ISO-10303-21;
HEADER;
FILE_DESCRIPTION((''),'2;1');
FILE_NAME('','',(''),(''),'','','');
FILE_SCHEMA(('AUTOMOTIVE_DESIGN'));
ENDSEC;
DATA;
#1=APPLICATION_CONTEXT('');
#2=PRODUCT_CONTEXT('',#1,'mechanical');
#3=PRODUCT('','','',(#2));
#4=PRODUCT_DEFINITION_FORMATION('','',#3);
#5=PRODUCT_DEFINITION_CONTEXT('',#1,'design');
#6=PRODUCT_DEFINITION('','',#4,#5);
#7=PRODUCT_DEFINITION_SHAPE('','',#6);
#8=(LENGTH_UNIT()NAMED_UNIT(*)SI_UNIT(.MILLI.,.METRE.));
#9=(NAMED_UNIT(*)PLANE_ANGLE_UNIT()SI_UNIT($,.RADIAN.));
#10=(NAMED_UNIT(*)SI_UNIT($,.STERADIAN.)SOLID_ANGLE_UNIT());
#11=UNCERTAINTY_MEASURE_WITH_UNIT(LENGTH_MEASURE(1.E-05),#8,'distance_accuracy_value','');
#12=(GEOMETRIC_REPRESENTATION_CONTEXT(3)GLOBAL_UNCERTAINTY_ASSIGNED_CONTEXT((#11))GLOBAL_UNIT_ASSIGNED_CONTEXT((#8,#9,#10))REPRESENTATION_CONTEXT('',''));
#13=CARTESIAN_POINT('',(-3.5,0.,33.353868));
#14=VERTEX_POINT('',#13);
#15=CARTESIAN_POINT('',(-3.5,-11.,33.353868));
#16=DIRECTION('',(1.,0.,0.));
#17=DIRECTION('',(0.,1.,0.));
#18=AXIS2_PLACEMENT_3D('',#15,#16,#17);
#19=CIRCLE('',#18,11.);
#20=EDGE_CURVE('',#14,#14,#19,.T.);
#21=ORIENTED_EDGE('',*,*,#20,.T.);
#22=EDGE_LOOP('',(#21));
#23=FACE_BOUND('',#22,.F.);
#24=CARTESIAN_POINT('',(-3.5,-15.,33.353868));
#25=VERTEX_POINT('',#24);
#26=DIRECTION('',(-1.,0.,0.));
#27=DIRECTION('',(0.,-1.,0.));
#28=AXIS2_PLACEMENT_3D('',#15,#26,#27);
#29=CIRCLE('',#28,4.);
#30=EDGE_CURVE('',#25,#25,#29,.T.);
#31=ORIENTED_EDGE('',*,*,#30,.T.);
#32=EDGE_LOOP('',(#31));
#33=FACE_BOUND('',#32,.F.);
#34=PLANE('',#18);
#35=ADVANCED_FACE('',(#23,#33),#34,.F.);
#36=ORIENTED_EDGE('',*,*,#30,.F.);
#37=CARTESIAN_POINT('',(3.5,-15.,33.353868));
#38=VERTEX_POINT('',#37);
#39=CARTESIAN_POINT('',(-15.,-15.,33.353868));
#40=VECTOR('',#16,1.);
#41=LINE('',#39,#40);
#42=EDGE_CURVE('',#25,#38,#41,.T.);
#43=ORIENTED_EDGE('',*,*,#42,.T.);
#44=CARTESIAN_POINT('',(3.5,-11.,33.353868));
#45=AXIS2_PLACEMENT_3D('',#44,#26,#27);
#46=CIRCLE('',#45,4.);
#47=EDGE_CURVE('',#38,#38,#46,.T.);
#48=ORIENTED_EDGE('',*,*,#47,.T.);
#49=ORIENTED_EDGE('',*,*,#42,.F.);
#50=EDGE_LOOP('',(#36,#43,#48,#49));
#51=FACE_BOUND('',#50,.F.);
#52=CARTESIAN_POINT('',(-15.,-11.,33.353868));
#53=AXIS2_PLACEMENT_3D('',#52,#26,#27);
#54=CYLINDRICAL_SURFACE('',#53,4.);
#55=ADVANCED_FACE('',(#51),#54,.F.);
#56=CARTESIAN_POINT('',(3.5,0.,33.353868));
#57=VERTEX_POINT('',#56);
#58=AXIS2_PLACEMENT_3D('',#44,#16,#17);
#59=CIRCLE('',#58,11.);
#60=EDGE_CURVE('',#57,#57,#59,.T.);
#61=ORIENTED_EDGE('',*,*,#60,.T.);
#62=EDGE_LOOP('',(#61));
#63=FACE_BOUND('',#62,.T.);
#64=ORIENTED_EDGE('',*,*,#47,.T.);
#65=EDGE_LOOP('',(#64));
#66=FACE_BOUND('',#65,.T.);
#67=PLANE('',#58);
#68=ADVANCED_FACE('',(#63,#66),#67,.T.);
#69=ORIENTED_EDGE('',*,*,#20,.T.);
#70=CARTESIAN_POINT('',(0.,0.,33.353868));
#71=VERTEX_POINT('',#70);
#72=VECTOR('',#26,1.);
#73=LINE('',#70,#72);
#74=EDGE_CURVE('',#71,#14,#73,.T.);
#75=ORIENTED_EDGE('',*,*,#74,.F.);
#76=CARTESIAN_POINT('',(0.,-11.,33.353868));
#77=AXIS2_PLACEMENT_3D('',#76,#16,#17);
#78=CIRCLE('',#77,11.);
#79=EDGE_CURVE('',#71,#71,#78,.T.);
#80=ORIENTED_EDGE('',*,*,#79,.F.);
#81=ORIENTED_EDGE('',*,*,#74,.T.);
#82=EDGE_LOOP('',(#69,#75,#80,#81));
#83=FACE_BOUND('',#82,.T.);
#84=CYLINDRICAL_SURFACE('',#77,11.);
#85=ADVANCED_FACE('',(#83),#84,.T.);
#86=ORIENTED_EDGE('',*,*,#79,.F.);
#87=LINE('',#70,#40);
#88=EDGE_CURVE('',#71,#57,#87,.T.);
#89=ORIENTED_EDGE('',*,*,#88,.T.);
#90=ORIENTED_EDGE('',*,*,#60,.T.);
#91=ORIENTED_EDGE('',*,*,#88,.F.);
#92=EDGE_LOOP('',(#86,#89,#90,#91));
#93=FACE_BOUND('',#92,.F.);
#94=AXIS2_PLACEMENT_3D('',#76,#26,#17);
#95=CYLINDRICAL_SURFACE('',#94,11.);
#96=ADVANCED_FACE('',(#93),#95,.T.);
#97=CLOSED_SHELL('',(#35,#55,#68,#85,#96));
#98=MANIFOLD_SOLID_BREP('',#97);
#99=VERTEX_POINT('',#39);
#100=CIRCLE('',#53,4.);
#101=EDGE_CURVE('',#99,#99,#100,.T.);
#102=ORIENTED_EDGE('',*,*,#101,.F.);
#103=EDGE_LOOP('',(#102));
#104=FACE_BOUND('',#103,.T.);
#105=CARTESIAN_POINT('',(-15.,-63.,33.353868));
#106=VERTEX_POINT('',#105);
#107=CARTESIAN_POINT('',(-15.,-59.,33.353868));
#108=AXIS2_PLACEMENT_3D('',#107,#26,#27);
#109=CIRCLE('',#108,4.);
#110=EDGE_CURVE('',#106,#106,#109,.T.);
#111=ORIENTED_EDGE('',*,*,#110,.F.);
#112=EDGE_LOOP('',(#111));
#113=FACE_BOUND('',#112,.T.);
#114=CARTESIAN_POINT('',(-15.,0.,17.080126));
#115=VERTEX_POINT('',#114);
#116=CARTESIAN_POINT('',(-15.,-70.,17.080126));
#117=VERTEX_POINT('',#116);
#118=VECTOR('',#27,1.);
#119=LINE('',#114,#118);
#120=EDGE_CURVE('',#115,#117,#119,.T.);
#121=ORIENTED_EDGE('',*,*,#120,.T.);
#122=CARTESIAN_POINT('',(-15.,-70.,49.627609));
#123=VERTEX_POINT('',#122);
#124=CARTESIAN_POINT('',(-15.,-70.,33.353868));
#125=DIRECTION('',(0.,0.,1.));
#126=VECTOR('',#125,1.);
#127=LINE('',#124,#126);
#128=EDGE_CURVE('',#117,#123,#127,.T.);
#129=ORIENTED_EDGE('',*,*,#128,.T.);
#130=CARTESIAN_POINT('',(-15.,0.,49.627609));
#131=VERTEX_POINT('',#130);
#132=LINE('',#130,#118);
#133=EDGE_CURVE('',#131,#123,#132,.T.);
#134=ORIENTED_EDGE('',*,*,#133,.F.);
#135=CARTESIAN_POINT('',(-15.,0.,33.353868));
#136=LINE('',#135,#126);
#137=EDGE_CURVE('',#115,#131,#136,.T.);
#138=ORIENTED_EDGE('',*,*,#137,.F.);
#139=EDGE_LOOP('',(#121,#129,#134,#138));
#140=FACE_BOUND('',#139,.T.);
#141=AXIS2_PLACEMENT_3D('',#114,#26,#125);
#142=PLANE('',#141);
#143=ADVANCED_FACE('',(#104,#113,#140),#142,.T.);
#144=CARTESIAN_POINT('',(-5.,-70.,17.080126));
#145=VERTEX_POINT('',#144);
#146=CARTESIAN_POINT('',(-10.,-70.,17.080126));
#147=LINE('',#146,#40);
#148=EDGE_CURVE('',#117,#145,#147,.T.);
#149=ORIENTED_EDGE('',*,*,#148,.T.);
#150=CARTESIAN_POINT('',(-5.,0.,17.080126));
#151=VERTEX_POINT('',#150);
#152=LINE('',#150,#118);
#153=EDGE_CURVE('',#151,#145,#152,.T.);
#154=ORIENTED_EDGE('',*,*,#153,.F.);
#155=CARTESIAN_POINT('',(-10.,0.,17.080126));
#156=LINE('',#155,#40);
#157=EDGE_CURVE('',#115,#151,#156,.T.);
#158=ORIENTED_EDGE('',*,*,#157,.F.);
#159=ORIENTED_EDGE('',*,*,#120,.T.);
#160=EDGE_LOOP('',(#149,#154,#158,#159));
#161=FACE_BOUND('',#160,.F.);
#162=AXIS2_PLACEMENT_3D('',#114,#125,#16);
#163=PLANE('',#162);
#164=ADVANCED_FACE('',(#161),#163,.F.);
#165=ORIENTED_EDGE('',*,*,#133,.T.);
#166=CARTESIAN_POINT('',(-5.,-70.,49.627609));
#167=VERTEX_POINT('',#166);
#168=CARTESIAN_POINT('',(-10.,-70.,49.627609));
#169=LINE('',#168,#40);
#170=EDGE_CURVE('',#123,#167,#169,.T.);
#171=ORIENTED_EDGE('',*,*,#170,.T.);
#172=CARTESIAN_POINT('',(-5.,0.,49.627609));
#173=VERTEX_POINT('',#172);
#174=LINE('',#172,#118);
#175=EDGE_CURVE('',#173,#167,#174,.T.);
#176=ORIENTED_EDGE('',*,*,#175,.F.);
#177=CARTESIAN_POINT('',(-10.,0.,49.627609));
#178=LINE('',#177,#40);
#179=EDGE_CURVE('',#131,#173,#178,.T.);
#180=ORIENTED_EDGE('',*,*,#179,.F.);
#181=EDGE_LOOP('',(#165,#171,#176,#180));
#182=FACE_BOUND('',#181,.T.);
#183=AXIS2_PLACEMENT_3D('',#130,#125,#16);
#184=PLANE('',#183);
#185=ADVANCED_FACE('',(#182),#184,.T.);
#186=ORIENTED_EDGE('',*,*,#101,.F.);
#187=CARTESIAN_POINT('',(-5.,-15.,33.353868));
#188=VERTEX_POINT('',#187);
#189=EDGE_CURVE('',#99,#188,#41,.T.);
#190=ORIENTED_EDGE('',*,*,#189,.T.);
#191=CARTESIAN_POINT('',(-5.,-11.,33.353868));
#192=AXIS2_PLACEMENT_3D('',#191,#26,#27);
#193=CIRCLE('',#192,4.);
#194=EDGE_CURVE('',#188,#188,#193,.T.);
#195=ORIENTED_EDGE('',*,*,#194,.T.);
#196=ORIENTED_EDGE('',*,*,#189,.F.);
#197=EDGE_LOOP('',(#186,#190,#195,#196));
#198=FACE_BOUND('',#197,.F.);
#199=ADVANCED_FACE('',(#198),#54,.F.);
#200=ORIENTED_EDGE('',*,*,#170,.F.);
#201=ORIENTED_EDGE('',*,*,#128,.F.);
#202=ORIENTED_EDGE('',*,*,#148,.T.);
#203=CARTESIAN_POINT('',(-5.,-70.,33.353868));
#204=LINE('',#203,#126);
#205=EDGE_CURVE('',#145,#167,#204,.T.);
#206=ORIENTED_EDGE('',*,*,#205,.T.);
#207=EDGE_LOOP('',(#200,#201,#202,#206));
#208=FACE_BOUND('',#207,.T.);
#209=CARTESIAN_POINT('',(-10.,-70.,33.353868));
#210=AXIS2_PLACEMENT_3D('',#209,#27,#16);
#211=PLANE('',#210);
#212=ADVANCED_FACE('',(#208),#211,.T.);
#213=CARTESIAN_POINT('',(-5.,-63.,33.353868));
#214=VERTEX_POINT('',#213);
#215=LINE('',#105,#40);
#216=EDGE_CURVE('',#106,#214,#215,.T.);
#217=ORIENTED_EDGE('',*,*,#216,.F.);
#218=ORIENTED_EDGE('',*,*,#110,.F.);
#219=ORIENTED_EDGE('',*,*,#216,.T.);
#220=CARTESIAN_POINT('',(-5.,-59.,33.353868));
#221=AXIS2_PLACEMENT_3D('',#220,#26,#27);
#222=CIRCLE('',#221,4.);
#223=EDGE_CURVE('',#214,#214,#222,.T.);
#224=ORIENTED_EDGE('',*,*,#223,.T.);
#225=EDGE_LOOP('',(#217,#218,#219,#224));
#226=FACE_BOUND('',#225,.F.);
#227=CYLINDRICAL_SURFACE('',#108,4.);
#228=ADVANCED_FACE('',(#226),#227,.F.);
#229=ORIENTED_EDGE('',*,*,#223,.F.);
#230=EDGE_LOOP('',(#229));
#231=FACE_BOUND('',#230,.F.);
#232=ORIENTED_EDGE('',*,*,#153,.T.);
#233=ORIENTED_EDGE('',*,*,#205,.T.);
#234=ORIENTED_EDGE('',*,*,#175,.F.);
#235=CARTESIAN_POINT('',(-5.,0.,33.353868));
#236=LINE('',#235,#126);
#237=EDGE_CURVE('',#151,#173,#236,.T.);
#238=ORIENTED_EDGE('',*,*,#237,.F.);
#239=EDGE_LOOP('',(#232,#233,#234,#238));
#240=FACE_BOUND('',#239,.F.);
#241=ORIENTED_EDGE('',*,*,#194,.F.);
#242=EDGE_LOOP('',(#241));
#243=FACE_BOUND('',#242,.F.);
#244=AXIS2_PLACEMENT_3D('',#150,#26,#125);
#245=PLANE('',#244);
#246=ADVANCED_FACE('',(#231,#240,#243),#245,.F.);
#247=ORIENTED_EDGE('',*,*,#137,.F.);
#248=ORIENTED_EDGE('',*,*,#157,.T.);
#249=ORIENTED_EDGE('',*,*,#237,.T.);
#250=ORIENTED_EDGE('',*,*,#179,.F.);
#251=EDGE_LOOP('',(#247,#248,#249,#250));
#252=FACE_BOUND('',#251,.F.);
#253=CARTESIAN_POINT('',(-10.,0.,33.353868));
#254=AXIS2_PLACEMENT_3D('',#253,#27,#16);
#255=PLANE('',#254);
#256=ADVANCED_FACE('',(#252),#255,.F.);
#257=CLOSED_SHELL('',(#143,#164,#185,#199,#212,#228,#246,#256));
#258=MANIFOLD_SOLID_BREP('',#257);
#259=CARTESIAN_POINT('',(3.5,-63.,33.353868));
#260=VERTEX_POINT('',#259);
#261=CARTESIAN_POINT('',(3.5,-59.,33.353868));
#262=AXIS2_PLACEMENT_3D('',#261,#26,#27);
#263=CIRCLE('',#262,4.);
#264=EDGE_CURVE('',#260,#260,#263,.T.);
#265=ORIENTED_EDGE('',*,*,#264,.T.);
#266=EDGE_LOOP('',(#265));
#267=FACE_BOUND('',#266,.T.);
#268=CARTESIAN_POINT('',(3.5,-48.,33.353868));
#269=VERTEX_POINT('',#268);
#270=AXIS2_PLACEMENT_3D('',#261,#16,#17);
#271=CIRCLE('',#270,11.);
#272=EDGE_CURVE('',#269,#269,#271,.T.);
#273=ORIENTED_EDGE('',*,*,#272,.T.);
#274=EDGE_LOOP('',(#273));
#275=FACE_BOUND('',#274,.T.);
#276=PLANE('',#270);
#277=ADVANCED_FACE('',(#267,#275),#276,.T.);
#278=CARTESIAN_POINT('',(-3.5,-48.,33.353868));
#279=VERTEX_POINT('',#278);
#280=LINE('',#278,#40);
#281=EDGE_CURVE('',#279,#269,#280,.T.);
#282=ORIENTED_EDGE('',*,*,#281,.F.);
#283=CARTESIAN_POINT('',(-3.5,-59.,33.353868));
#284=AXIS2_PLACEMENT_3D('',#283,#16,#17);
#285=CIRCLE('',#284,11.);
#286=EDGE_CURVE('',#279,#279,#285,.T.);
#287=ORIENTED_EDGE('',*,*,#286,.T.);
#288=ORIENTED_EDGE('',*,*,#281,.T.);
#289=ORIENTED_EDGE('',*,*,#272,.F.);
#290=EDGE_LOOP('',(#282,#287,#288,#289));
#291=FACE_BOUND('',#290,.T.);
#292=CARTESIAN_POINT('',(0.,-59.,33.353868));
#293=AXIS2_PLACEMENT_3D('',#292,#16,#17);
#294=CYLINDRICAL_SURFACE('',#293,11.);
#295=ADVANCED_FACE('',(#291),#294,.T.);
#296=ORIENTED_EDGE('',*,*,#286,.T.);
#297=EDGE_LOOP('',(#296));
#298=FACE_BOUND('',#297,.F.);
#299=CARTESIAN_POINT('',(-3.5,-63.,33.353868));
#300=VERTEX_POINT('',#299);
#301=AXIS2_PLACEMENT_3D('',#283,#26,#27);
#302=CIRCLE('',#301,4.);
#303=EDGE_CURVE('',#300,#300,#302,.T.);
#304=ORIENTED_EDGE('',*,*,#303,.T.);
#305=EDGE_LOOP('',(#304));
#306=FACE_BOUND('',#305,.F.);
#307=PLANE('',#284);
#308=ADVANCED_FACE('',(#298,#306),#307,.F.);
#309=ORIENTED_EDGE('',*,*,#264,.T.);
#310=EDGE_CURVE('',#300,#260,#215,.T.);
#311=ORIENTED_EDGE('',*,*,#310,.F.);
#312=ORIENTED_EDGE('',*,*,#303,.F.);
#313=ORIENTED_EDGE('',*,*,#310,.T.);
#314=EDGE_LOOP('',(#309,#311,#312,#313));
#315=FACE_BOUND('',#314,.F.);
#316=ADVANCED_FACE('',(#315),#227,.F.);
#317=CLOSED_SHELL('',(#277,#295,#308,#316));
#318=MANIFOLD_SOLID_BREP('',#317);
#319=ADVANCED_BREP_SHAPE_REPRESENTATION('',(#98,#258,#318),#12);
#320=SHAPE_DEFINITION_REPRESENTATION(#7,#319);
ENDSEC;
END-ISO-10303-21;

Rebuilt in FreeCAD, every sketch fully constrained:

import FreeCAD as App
import Part
import Sketcher

V = App.Vector


def add_polygon(sketch, points):
    """Adds a closed chain of lines whose ends are joined by coincident constraints."""
    first, n = sketch.GeometryCount, len(points)
    for a, b in zip(points, points[1:] + points[:1]):
        sketch.addGeometry(Part.LineSegment(App.Vector(*a, 0), App.Vector(*b, 0)), False)
    for i in range(n):
        sketch.addConstraint(Sketcher.Constraint("Coincident", first + i, 2, first + (i + 1) % n, 1))

doc = App.newDocument("Part")
params = doc.addObject("Spreadsheet::Sheet", "Params")
for row, (alias, value) in enumerate([
    ("sketch1_width", "10 mm"),
    ("pad1_length", "70 mm"),
    ("sketch2_diameter", "22 mm"),
    ("pad2_length", "7 mm"),
    ("sketch3_diameter", "8 mm"),
    ("pad3_length", "18.501 mm"),
], start=1):
    params.set(f"A{row}", alias)
    params.set(f"B{row}", "=" + value)
    params.setAlias(f"B{row}", alias)

body = doc.addObject("PartDesign::Body", "Body")

# Sketch on XZ plane
sketch1 = body.newObject("Sketcher::SketchObject", "Sketch")
sketch1.AttachmentSupport = (doc.getObject("XZ_Plane"), [""])
sketch1.MapMode = "FlatFace"
add_polygon(sketch1, [(-15, 50), (-15, 17), (-5, 17), (-5, 50)])  # lines 0-3
sketch1.addConstraint([
    Sketcher.Constraint("Vertical", 0),
    Sketcher.Constraint("Horizontal", 1),
    Sketcher.Constraint("Vertical", 2),
    Sketcher.Constraint("Horizontal", 3),
    Sketcher.Constraint("DistanceX", 1, 1, 1, 2, 10.0),
    Sketcher.Constraint("DistanceX", 0, 2, -1, 1, 15.0),
    Sketcher.Constraint("DistanceY", 0, 2, 0, 1, 32.547483),
    Sketcher.Constraint("DistanceY", -1, 1, 2, 2, 49.627609),
])
sketch1.setExpression("Constraints[8]", "Params.sketch1_width")
pad1 = body.newObject("PartDesign::Pad", "Pad")
pad1.Profile = sketch1
pad1.setExpression("Length", "Params.pad1_length")
body2 = doc.addObject("PartDesign::Body", "Body001")
body2.AllowCompound = True

# Sketch on YZ plane
sketch2 = body2.newObject("Sketcher::SketchObject", "Sketch001")
sketch2.AttachmentSupport = (doc.getObject("YZ_Plane001"), [""])
sketch2.MapMode = "FlatFace"
sketch2.addGeometry([
    Part.Circle(V(-11, 33, 0), V(0, 0, 1), 11),
    Part.Circle(V(-59, 33, 0), V(0, 0, 1), 11),
], False)
sketch2.addConstraint([
    Sketcher.Constraint("Equal", 0, 1),
    Sketcher.Constraint("Horizontal", 0, 3, 1, 3),
    Sketcher.Constraint("Diameter", 0, 22.0),
    Sketcher.Constraint("DistanceX", 0, 3, -1, 1, 11.0),
    Sketcher.Constraint("DistanceX", 1, 3, -1, 1, 59.0),
    Sketcher.Constraint("DistanceY", -1, 1, 0, 3, 33.353868),
])
sketch2.setExpression("Constraints[2]", "Params.sketch2_diameter")
pad2 = body2.newObject("PartDesign::Pad", "Pad001")
pad2.Profile = sketch2
pad2.setExpression("Length", "Params.pad2_length")
pad2.Midplane = True
body3 = doc.addObject("PartDesign::Body", "Body002")
body3.AllowCompound = True

# Sketch on YZ plane
sketch3 = body3.newObject("Sketcher::SketchObject", "Sketch002")
sketch3.AttachmentSupport = (doc.getObject("YZ_Plane002"), [""])
sketch3.MapMode = "FlatFace"
sketch3.AttachmentOffset = App.Placement(V(0, 0, -15), App.Rotation())
sketch3.addGeometry([
    Part.Circle(V(-11, 33.4, 0), V(0, 0, 1), 4),
    Part.Circle(V(-59, 33.4, 0), V(0, 0, 1), 4),
], False)
sketch3.addConstraint([
    Sketcher.Constraint("Equal", 0, 1),
    Sketcher.Constraint("Horizontal", 0, 3, 1, 3),
    Sketcher.Constraint("Diameter", 0, 8.0),
    Sketcher.Constraint("DistanceX", 0, 3, -1, 1, 11.0),
    Sketcher.Constraint("DistanceX", 1, 3, -1, 1, 59.0),
    Sketcher.Constraint("DistanceY", -1, 1, 0, 3, 33.353868),
])
sketch3.setExpression("Constraints[2]", "Params.sketch3_diameter")
pad3 = body3.newObject("PartDesign::Pad", "Pad002")
pad3.Profile = sketch3
pad3.setExpression("Length", "Params.pad3_length")
doc.recompute()

body4 = doc.addObject("PartDesign::Body", "Body003")
body4.BaseFeature = body3
boolean = body.newObject("PartDesign::Boolean", "Boolean")
boolean.Type = "Cut"
boolean.addObjects([body4])
doc.recompute()
body2.AllowCompound = True
doc.recompute()

boolean2 = body2.newObject("PartDesign::Boolean", "Boolean001")
boolean2.Type = "Cut"
boolean2.addObjects([body3])

doc.recompute()
